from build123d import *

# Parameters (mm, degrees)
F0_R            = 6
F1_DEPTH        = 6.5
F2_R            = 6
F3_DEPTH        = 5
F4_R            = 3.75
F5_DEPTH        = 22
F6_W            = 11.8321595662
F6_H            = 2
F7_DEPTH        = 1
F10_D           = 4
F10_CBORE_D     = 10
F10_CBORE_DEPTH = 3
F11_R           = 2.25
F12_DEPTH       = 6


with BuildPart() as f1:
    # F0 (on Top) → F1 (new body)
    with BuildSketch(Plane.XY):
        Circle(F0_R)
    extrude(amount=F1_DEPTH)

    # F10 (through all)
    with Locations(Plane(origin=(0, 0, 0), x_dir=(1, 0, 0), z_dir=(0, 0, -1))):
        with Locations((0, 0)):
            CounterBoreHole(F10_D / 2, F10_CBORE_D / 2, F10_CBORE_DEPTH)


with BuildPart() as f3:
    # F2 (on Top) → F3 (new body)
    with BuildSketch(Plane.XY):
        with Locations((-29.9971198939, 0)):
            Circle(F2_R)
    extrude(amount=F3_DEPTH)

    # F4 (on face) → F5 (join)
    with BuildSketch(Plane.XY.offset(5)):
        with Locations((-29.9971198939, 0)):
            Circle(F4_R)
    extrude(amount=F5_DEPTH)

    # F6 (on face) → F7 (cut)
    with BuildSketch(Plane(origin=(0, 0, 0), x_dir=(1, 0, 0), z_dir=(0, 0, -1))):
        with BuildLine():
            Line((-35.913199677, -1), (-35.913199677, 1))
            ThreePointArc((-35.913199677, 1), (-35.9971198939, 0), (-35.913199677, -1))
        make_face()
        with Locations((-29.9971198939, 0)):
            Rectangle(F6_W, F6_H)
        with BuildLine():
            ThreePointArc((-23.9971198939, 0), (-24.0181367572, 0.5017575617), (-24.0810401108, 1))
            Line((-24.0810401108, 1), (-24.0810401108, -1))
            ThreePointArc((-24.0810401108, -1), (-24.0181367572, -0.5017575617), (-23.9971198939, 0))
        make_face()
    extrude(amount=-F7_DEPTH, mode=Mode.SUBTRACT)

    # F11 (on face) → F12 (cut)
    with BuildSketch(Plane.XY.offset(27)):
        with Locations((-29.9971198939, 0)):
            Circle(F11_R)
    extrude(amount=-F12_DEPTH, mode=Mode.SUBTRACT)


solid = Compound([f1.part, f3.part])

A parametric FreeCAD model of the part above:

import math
import FreeCAD as App
import Part
import Sketcher
from FreeCAD import Vector

doc = App.newDocument("Part")
body = doc.addObject("PartDesign::Body", "Body")

# Sketch on XY plane
sketch1 = body.newObject("Sketcher::SketchObject", "Sketch")
sketch1.AttachmentSupport = (doc.getObject("XY_Plane"), [""])
sketch1.MapMode = "FlatFace"
sketch1.addGeometry(Part.Circle(Vector(0, 0, 0), Vector(0, 0, 1), 6), False)
sketch1.addConstraint(Sketcher.Constraint("Coincident", 0, 3, -1, 1))
sketch1.addConstraint(Sketcher.Constraint("Diameter", 0, 12.0))
pad1 = body.newObject("PartDesign::Pad", "Pad")
pad1.Profile = sketch1
pad1.Length = 6.5

# Sketch on XY plane
sketch2 = body.newObject("Sketcher::SketchObject", "Sketch001")
sketch2.AttachmentSupport = (doc.getObject("XY_Plane"), [""])
sketch2.MapMode = "FlatFace"
sketch2.addGeometry(Part.Circle(Vector(0, 0, 0), Vector(0, 0, 1), 2), False)
sketch2.addConstraint(Sketcher.Constraint("Coincident", 0, 3, -1, 1))
sketch2.addConstraint(Sketcher.Constraint("Diameter", 0, 4.0))
doc.recompute()
hole = body.newObject("PartDesign::Hole", "Hole")
hole.Profile = sketch2
hole.ThreadType = "None"
hole.Diameter = 4
hole.DepthType = "ThroughAll"
hole.HoleCutType = "Counterbore"
hole.HoleCutDiameter = 10
hole.HoleCutDepth = 3
hole.Reversed = True
body2 = doc.addObject("PartDesign::Body", "Body001")

# Sketch on XY plane
sketch3 = body2.newObject("Sketcher::SketchObject", "Sketch002")
sketch3.AttachmentSupport = (doc.getObject("XY_Plane001"), [""])
sketch3.MapMode = "FlatFace"
sketch3.addGeometry(Part.Circle(Vector(-30, 0, 0), Vector(0, 0, 1), 6), False)
sketch3.addConstraint(Sketcher.Constraint("PointOnObject", 0, 3, -1))
sketch3.addConstraint(Sketcher.Constraint("Diameter", 0, 12.0))
sketch3.addConstraint(Sketcher.Constraint("DistanceX", 0, 3, -1, 1, 29.99712))
pad2 = body2.newObject("PartDesign::Pad", "Pad001")
pad2.Profile = sketch3
pad2.Length = 5

# Sketch on XY plane
sketch4 = body2.newObject("Sketcher::SketchObject", "Sketch003")
sketch4.AttachmentSupport = (doc.getObject("XY_Plane001"), [""])
sketch4.MapMode = "FlatFace"
sketch4.AttachmentOffset = App.Placement(Vector(0, 0, 5), App.Rotation())
sketch4.addGeometry(Part.Circle(Vector(-30, 0, 0), Vector(0, 0, 1), 3.8), False)
sketch4.addConstraint(Sketcher.Constraint("PointOnObject", 0, 3, -1))
sketch4.addConstraint(Sketcher.Constraint("Diameter", 0, 7.5))
sketch4.addConstraint(Sketcher.Constraint("DistanceX", 0, 3, -1, 1, 29.99712))
pad3 = body2.newObject("PartDesign::Pad", "Pad002")
pad3.Profile = sketch4
pad3.Length = 22

# Sketch on XY plane
sketch5 = body2.newObject("Sketcher::SketchObject", "Sketch004")
sketch5.AttachmentSupport = (doc.getObject("XY_Plane001"), [""])
sketch5.MapMode = "FlatFace"
sketch5.addGeometry(Part.ArcOfCircle(Part.Circle(Vector(-30, 0, 0), Vector(0, 0, 1), 6), math.radians(170.41), math.radians(189.59)), False)
sketch5.addGeometry(Part.LineSegment(Vector(-35.9, 1, 0), Vector(-24.1, 1, 0)), False)
sketch5.addGeometry(Part.ArcOfCircle(Part.Circle(Vector(-30, 0, 0), Vector(0, 0, 1), 6), math.radians(0), math.radians(9.59)), False)
sketch5.addGeometry(Part.ArcOfCircle(Part.Circle(Vector(-30, 0, 0), Vector(0, 0, 1), 6), math.radians(-9.59), math.radians(0)), False)
sketch5.addGeometry(Part.LineSegment(Vector(-24.1, -1, 0), Vector(-35.9, -1, 0)), False)
sketch5.addConstraint(Sketcher.Constraint("Coincident", 0, 1, 1, 1))
sketch5.addConstraint(Sketcher.Constraint("Coincident", 1, 2, 2, 2))
sketch5.addConstraint(Sketcher.Constraint("Tangent", 2, 1, 3, 2))
sketch5.addConstraint(Sketcher.Constraint("Coincident", 3, 1, 4, 1))
sketch5.addConstraint(Sketcher.Constraint("Coincident", 4, 2, 0, 2))
sketch5.addConstraint(Sketcher.Constraint("Horizontal", 1))
sketch5.addConstraint(Sketcher.Constraint("Horizontal", 4))
sketch5.addConstraint(Sketcher.Constraint("Coincident", 2, 3, 0, 3))
sketch5.addConstraint(Sketcher.Constraint("Equal", 0, 2))
sketch5.addConstraint(Sketcher.Constraint("Equal", 2, 3))
sketch5.addConstraint(Sketcher.Constraint("Symmetric", 1, 2, 3, 1, -1))
sketch5.addConstraint(Sketcher.Constraint("PointOnObject", 2, 1, -1))
sketch5.addConstraint(Sketcher.Constraint("Radius", 0, 6.0))
sketch5.addConstraint(Sketcher.Constraint("DistanceY", -1, 1, 0, 1, 1.0))
sketch5.addConstraint(Sketcher.Constraint("DistanceX", 0, 1, -1, 1, 35.9132))
pocket1 = body2.newObject("PartDesign::Pocket", "Pocket")
pocket1.Profile = sketch5
pocket1.Length = 1
pocket1.Reversed = True

# Sketch on XY plane
sketch6 = body2.newObject("Sketcher::SketchObject", "Sketch005")
sketch6.AttachmentSupport = (doc.getObject("XY_Plane001"), [""])
sketch6.MapMode = "FlatFace"
sketch6.AttachmentOffset = App.Placement(Vector(0, 0, 27), App.Rotation())
sketch6.addGeometry(Part.Circle(Vector(-30, 0, 0), Vector(0, 0, 1), 2.2), False)
sketch6.addConstraint(Sketcher.Constraint("PointOnObject", 0, 3, -1))
sketch6.addConstraint(Sketcher.Constraint("Diameter", 0, 4.5))
sketch6.addConstraint(Sketcher.Constraint("DistanceX", 0, 3, -1, 1, 29.99712))
pocket2 = body2.newObject("PartDesign::Pocket", "Pocket001")
pocket2.Profile = sketch6
pocket2.Length = 6

doc.recompute()
